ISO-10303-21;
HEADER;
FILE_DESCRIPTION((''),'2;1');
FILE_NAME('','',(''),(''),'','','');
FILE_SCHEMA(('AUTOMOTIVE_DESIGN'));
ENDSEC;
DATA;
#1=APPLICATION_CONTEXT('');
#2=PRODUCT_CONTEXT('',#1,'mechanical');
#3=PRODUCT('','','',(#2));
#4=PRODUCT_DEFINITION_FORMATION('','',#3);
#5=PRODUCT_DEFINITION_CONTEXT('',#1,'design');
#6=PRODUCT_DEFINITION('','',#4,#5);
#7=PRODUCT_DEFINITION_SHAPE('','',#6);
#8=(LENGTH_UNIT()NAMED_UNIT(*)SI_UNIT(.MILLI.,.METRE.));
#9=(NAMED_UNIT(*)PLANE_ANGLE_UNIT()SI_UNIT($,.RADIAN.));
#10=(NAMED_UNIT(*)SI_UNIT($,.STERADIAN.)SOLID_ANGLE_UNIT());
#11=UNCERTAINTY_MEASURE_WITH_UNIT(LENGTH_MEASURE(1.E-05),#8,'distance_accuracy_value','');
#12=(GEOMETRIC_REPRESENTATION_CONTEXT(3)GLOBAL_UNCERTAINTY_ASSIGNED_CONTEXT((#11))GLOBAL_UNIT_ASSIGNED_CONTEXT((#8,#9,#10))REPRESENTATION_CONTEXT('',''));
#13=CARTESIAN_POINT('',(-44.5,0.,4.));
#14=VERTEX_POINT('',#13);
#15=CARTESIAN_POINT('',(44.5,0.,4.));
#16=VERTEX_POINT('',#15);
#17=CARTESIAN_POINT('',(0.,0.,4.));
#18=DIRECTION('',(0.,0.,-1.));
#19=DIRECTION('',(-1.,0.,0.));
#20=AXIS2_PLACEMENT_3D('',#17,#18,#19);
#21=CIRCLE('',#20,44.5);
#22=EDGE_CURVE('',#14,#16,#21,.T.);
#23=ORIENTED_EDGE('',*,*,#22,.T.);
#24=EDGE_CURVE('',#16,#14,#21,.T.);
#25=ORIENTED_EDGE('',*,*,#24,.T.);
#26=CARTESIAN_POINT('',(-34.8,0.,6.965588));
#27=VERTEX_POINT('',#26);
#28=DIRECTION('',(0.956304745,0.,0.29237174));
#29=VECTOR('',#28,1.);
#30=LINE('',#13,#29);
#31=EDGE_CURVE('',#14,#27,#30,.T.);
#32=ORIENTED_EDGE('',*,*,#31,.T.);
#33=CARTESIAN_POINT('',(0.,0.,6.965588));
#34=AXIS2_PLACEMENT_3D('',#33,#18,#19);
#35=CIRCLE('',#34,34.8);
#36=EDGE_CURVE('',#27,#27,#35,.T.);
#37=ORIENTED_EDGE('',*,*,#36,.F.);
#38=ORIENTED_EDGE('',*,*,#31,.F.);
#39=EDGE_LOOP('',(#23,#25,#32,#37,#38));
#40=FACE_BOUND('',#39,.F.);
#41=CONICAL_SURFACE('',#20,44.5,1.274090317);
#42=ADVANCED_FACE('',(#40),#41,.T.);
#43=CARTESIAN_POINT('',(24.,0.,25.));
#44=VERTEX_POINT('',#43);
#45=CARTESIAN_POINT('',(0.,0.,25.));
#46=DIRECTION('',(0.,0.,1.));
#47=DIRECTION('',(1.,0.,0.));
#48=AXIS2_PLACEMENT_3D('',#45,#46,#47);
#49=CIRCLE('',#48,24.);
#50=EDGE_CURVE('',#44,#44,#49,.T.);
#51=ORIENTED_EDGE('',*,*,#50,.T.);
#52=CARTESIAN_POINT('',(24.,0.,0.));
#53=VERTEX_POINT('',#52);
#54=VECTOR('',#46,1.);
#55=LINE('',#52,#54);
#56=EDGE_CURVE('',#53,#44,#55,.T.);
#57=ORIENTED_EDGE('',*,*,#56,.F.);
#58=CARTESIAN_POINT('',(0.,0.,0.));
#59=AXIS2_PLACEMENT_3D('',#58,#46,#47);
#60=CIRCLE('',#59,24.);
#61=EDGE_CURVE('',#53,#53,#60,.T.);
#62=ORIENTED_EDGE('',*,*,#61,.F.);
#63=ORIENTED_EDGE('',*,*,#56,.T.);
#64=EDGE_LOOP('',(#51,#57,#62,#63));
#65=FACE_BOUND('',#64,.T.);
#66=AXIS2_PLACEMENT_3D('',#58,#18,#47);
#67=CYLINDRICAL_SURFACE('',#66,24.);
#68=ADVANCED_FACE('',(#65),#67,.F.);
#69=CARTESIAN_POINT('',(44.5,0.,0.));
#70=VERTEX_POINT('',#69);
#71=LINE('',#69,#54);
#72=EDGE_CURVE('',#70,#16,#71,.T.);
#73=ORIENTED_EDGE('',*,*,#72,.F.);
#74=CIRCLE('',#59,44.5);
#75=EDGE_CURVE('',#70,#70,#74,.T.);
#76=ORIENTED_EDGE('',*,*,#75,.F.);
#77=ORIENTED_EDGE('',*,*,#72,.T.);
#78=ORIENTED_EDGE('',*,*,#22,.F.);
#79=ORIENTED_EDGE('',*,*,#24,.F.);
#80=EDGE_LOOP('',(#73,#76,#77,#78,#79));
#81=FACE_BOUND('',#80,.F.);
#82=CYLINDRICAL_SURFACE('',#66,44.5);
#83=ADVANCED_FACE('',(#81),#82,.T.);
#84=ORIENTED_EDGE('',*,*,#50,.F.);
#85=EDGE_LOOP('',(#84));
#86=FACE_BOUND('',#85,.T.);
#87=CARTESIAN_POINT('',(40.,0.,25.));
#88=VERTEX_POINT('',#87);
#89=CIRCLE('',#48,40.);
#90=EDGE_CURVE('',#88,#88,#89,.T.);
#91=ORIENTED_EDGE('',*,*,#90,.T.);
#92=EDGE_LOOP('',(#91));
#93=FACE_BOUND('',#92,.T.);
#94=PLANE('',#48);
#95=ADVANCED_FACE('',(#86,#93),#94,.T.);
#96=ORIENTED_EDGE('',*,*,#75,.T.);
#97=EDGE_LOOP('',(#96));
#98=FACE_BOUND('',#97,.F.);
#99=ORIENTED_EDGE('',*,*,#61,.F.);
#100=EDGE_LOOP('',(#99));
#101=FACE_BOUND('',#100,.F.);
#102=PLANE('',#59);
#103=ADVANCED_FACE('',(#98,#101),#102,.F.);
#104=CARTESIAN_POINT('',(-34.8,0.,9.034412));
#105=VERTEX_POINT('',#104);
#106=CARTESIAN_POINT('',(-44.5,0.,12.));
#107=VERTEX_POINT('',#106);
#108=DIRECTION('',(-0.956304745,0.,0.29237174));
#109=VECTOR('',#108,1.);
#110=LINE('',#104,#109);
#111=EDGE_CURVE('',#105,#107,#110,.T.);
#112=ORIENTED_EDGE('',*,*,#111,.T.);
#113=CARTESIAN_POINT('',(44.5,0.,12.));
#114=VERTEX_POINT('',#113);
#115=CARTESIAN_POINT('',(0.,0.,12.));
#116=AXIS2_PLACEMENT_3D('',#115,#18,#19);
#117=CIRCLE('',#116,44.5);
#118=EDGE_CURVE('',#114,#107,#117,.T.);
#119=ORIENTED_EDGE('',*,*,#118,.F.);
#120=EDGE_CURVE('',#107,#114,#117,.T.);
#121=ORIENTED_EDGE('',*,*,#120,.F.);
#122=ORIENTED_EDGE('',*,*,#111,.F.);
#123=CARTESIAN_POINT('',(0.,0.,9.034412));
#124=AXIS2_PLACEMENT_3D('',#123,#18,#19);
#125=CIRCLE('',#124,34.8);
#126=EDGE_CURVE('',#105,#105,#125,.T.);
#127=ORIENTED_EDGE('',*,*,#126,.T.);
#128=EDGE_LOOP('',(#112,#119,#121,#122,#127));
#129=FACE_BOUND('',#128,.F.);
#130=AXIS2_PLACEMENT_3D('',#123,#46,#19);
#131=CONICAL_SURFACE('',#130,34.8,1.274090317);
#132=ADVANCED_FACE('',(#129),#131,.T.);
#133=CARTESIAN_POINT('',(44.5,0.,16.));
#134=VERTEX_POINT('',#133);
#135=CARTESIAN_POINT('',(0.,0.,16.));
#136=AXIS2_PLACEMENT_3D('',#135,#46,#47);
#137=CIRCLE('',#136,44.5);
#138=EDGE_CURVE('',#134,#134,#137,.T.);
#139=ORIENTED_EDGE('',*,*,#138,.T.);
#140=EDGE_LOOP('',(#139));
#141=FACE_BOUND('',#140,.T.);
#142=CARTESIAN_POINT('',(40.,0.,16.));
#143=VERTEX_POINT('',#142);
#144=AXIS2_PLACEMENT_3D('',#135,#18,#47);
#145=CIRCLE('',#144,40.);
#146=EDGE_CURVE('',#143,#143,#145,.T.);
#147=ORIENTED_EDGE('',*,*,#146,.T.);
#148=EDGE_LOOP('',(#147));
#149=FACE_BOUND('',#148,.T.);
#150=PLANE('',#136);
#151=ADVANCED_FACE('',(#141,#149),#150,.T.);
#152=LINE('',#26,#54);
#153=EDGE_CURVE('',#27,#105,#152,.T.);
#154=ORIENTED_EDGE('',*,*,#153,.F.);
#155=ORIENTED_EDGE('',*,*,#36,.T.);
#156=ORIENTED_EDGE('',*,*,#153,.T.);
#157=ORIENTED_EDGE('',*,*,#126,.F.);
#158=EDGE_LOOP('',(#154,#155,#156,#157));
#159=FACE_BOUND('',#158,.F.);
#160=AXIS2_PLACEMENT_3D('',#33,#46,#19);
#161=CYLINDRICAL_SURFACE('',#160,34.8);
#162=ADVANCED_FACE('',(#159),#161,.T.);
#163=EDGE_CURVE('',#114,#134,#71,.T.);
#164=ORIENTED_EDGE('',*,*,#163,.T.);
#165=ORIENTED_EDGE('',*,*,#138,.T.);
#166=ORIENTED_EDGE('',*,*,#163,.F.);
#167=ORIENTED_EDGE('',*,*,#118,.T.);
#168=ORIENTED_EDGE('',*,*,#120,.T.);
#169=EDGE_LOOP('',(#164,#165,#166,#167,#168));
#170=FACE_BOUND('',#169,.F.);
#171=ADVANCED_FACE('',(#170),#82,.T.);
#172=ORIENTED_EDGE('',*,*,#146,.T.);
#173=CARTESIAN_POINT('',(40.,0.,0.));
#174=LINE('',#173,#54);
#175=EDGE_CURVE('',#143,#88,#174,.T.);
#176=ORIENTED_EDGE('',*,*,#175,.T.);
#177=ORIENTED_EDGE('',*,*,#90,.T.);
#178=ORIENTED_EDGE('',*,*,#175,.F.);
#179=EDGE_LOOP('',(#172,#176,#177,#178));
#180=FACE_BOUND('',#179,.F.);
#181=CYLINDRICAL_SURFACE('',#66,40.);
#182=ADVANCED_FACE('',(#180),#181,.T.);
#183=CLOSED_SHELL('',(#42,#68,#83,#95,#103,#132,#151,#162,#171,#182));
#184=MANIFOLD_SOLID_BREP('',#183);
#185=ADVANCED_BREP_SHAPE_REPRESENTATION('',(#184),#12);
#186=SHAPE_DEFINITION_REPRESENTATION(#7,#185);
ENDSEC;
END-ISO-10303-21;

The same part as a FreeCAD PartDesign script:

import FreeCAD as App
import Part
import Sketcher
from FreeCAD import Vector
Q = App.Units.Quantity

doc = App.newDocument("Part")
body = doc.addObject("PartDesign::Body", "Body")

# Sketch on XY plane
sketch1 = body.newObject("Sketcher::SketchObject", "Sketch")
sketch1.AttachmentSupport = (doc.getObject("XY_Plane"), [""])
sketch1.MapMode = "FlatFace"
sketch1.addGeometry(Part.Circle(Vector(0, 0, 0), Vector(0, 0, 1), 44), False)
sketch1.addGeometry(Part.Circle(Vector(0, 0, 0), Vector(0, 0, 1), 24), False)
sketch1.addConstraint(Sketcher.Constraint("Coincident", 0, 3, -1, 1))
sketch1.addConstraint(Sketcher.Constraint("Coincident", 1, 3, -1, 1))
sketch1.addConstraint(Sketcher.Constraint("Diameter", 0, 89.0))
sketch1.addConstraint(Sketcher.Constraint("Diameter", 1, 48.0))
pad1 = body.newObject("PartDesign::Pad", "Pad")
pad1.Profile = sketch1
pad1.Length = 16

# Sketch on XY plane
sketch2 = body.newObject("Sketcher::SketchObject", "Sketch001")
sketch2.AttachmentSupport = (doc.getObject("XY_Plane"), [""])
sketch2.MapMode = "FlatFace"
sketch2.addGeometry(Part.Circle(Vector(0, 0, 0), Vector(0, 0, 1), 40), False)
sketch2.addGeometry(Part.Circle(Vector(0, 0, 0), Vector(0, 0, 1), 24), False)
sketch2.addConstraint(Sketcher.Constraint("Coincident", 0, 3, -1, 1))
sketch2.addConstraint(Sketcher.Constraint("Coincident", 1, 3, -1, 1))
sketch2.addConstraint(Sketcher.Constraint("Diameter", 0, 80.0))
sketch2.addConstraint(Sketcher.Constraint("Diameter", 1, 48.0))
pad2 = body.newObject("PartDesign::Pad", "Pad001")
pad2.Profile = sketch2
pad2.Length = 25

# Sketch on XZ plane
sketch3 = body.newObject("Sketcher::SketchObject", "Sketch002")
sketch3.AttachmentSupport = (doc.getObject("XZ_Plane"), [""])
sketch3.MapMode = "FlatFace"
sketch3.addGeometry(Part.LineSegment(Vector(-34.8, 9, 0), Vector(-44.5, 12, 0)), False)
sketch3.addGeometry(Part.LineSegment(Vector(-44.5, 12, 0), Vector(-44.5, 4, 0)), False)
sketch3.addGeometry(Part.LineSegment(Vector(-44.5, 4, 0), Vector(-34.8, 7, 0)), False)
sketch3.addGeometry(Part.LineSegment(Vector(-34.8, 7, 0), Vector(-34.8, 9, 0)), False)
sketch3.addConstraint(Sketcher.Constraint("Coincident", 0, 2, 1, 1))
sketch3.addConstraint(Sketcher.Constraint("Coincident", 1, 2, 2, 1))
sketch3.addConstraint(Sketcher.Constraint("Coincident", 2, 2, 3, 1))
sketch3.addConstraint(Sketcher.Constraint("Coincident", 3, 2, 0, 1))
sketch3.addConstraint(Sketcher.Constraint("Vertical", 1))
sketch3.addConstraint(Sketcher.Constraint("Vertical", 3))
sketch3.addConstraint(Sketcher.Constraint("Equal", 0, 2))
sketch3.addConstraint(Sketcher.Constraint("DistanceY", 1, 2, 1, 1, 8.0))
sketch3.addConstraint(Sketcher.Constraint("Angle", 0, Q("162.999998 deg")))
sketch3.addConstraint(Sketcher.Constraint("DistanceY", -1, 1, 0, 2, 12.0))
sketch3.addConstraint(Sketcher.Constraint("DistanceX", 0, 2, -1, 1, 44.5))
sketch3.addConstraint(Sketcher.Constraint("DistanceX", 2, 2, -1, 1, 34.8))
groove = body.newObject("PartDesign::Groove", "Groove")
groove.Profile = sketch3
groove.ReferenceAxis = (sketch3, ["V_Axis"])
groove.Angle = 360

doc.recompute()
